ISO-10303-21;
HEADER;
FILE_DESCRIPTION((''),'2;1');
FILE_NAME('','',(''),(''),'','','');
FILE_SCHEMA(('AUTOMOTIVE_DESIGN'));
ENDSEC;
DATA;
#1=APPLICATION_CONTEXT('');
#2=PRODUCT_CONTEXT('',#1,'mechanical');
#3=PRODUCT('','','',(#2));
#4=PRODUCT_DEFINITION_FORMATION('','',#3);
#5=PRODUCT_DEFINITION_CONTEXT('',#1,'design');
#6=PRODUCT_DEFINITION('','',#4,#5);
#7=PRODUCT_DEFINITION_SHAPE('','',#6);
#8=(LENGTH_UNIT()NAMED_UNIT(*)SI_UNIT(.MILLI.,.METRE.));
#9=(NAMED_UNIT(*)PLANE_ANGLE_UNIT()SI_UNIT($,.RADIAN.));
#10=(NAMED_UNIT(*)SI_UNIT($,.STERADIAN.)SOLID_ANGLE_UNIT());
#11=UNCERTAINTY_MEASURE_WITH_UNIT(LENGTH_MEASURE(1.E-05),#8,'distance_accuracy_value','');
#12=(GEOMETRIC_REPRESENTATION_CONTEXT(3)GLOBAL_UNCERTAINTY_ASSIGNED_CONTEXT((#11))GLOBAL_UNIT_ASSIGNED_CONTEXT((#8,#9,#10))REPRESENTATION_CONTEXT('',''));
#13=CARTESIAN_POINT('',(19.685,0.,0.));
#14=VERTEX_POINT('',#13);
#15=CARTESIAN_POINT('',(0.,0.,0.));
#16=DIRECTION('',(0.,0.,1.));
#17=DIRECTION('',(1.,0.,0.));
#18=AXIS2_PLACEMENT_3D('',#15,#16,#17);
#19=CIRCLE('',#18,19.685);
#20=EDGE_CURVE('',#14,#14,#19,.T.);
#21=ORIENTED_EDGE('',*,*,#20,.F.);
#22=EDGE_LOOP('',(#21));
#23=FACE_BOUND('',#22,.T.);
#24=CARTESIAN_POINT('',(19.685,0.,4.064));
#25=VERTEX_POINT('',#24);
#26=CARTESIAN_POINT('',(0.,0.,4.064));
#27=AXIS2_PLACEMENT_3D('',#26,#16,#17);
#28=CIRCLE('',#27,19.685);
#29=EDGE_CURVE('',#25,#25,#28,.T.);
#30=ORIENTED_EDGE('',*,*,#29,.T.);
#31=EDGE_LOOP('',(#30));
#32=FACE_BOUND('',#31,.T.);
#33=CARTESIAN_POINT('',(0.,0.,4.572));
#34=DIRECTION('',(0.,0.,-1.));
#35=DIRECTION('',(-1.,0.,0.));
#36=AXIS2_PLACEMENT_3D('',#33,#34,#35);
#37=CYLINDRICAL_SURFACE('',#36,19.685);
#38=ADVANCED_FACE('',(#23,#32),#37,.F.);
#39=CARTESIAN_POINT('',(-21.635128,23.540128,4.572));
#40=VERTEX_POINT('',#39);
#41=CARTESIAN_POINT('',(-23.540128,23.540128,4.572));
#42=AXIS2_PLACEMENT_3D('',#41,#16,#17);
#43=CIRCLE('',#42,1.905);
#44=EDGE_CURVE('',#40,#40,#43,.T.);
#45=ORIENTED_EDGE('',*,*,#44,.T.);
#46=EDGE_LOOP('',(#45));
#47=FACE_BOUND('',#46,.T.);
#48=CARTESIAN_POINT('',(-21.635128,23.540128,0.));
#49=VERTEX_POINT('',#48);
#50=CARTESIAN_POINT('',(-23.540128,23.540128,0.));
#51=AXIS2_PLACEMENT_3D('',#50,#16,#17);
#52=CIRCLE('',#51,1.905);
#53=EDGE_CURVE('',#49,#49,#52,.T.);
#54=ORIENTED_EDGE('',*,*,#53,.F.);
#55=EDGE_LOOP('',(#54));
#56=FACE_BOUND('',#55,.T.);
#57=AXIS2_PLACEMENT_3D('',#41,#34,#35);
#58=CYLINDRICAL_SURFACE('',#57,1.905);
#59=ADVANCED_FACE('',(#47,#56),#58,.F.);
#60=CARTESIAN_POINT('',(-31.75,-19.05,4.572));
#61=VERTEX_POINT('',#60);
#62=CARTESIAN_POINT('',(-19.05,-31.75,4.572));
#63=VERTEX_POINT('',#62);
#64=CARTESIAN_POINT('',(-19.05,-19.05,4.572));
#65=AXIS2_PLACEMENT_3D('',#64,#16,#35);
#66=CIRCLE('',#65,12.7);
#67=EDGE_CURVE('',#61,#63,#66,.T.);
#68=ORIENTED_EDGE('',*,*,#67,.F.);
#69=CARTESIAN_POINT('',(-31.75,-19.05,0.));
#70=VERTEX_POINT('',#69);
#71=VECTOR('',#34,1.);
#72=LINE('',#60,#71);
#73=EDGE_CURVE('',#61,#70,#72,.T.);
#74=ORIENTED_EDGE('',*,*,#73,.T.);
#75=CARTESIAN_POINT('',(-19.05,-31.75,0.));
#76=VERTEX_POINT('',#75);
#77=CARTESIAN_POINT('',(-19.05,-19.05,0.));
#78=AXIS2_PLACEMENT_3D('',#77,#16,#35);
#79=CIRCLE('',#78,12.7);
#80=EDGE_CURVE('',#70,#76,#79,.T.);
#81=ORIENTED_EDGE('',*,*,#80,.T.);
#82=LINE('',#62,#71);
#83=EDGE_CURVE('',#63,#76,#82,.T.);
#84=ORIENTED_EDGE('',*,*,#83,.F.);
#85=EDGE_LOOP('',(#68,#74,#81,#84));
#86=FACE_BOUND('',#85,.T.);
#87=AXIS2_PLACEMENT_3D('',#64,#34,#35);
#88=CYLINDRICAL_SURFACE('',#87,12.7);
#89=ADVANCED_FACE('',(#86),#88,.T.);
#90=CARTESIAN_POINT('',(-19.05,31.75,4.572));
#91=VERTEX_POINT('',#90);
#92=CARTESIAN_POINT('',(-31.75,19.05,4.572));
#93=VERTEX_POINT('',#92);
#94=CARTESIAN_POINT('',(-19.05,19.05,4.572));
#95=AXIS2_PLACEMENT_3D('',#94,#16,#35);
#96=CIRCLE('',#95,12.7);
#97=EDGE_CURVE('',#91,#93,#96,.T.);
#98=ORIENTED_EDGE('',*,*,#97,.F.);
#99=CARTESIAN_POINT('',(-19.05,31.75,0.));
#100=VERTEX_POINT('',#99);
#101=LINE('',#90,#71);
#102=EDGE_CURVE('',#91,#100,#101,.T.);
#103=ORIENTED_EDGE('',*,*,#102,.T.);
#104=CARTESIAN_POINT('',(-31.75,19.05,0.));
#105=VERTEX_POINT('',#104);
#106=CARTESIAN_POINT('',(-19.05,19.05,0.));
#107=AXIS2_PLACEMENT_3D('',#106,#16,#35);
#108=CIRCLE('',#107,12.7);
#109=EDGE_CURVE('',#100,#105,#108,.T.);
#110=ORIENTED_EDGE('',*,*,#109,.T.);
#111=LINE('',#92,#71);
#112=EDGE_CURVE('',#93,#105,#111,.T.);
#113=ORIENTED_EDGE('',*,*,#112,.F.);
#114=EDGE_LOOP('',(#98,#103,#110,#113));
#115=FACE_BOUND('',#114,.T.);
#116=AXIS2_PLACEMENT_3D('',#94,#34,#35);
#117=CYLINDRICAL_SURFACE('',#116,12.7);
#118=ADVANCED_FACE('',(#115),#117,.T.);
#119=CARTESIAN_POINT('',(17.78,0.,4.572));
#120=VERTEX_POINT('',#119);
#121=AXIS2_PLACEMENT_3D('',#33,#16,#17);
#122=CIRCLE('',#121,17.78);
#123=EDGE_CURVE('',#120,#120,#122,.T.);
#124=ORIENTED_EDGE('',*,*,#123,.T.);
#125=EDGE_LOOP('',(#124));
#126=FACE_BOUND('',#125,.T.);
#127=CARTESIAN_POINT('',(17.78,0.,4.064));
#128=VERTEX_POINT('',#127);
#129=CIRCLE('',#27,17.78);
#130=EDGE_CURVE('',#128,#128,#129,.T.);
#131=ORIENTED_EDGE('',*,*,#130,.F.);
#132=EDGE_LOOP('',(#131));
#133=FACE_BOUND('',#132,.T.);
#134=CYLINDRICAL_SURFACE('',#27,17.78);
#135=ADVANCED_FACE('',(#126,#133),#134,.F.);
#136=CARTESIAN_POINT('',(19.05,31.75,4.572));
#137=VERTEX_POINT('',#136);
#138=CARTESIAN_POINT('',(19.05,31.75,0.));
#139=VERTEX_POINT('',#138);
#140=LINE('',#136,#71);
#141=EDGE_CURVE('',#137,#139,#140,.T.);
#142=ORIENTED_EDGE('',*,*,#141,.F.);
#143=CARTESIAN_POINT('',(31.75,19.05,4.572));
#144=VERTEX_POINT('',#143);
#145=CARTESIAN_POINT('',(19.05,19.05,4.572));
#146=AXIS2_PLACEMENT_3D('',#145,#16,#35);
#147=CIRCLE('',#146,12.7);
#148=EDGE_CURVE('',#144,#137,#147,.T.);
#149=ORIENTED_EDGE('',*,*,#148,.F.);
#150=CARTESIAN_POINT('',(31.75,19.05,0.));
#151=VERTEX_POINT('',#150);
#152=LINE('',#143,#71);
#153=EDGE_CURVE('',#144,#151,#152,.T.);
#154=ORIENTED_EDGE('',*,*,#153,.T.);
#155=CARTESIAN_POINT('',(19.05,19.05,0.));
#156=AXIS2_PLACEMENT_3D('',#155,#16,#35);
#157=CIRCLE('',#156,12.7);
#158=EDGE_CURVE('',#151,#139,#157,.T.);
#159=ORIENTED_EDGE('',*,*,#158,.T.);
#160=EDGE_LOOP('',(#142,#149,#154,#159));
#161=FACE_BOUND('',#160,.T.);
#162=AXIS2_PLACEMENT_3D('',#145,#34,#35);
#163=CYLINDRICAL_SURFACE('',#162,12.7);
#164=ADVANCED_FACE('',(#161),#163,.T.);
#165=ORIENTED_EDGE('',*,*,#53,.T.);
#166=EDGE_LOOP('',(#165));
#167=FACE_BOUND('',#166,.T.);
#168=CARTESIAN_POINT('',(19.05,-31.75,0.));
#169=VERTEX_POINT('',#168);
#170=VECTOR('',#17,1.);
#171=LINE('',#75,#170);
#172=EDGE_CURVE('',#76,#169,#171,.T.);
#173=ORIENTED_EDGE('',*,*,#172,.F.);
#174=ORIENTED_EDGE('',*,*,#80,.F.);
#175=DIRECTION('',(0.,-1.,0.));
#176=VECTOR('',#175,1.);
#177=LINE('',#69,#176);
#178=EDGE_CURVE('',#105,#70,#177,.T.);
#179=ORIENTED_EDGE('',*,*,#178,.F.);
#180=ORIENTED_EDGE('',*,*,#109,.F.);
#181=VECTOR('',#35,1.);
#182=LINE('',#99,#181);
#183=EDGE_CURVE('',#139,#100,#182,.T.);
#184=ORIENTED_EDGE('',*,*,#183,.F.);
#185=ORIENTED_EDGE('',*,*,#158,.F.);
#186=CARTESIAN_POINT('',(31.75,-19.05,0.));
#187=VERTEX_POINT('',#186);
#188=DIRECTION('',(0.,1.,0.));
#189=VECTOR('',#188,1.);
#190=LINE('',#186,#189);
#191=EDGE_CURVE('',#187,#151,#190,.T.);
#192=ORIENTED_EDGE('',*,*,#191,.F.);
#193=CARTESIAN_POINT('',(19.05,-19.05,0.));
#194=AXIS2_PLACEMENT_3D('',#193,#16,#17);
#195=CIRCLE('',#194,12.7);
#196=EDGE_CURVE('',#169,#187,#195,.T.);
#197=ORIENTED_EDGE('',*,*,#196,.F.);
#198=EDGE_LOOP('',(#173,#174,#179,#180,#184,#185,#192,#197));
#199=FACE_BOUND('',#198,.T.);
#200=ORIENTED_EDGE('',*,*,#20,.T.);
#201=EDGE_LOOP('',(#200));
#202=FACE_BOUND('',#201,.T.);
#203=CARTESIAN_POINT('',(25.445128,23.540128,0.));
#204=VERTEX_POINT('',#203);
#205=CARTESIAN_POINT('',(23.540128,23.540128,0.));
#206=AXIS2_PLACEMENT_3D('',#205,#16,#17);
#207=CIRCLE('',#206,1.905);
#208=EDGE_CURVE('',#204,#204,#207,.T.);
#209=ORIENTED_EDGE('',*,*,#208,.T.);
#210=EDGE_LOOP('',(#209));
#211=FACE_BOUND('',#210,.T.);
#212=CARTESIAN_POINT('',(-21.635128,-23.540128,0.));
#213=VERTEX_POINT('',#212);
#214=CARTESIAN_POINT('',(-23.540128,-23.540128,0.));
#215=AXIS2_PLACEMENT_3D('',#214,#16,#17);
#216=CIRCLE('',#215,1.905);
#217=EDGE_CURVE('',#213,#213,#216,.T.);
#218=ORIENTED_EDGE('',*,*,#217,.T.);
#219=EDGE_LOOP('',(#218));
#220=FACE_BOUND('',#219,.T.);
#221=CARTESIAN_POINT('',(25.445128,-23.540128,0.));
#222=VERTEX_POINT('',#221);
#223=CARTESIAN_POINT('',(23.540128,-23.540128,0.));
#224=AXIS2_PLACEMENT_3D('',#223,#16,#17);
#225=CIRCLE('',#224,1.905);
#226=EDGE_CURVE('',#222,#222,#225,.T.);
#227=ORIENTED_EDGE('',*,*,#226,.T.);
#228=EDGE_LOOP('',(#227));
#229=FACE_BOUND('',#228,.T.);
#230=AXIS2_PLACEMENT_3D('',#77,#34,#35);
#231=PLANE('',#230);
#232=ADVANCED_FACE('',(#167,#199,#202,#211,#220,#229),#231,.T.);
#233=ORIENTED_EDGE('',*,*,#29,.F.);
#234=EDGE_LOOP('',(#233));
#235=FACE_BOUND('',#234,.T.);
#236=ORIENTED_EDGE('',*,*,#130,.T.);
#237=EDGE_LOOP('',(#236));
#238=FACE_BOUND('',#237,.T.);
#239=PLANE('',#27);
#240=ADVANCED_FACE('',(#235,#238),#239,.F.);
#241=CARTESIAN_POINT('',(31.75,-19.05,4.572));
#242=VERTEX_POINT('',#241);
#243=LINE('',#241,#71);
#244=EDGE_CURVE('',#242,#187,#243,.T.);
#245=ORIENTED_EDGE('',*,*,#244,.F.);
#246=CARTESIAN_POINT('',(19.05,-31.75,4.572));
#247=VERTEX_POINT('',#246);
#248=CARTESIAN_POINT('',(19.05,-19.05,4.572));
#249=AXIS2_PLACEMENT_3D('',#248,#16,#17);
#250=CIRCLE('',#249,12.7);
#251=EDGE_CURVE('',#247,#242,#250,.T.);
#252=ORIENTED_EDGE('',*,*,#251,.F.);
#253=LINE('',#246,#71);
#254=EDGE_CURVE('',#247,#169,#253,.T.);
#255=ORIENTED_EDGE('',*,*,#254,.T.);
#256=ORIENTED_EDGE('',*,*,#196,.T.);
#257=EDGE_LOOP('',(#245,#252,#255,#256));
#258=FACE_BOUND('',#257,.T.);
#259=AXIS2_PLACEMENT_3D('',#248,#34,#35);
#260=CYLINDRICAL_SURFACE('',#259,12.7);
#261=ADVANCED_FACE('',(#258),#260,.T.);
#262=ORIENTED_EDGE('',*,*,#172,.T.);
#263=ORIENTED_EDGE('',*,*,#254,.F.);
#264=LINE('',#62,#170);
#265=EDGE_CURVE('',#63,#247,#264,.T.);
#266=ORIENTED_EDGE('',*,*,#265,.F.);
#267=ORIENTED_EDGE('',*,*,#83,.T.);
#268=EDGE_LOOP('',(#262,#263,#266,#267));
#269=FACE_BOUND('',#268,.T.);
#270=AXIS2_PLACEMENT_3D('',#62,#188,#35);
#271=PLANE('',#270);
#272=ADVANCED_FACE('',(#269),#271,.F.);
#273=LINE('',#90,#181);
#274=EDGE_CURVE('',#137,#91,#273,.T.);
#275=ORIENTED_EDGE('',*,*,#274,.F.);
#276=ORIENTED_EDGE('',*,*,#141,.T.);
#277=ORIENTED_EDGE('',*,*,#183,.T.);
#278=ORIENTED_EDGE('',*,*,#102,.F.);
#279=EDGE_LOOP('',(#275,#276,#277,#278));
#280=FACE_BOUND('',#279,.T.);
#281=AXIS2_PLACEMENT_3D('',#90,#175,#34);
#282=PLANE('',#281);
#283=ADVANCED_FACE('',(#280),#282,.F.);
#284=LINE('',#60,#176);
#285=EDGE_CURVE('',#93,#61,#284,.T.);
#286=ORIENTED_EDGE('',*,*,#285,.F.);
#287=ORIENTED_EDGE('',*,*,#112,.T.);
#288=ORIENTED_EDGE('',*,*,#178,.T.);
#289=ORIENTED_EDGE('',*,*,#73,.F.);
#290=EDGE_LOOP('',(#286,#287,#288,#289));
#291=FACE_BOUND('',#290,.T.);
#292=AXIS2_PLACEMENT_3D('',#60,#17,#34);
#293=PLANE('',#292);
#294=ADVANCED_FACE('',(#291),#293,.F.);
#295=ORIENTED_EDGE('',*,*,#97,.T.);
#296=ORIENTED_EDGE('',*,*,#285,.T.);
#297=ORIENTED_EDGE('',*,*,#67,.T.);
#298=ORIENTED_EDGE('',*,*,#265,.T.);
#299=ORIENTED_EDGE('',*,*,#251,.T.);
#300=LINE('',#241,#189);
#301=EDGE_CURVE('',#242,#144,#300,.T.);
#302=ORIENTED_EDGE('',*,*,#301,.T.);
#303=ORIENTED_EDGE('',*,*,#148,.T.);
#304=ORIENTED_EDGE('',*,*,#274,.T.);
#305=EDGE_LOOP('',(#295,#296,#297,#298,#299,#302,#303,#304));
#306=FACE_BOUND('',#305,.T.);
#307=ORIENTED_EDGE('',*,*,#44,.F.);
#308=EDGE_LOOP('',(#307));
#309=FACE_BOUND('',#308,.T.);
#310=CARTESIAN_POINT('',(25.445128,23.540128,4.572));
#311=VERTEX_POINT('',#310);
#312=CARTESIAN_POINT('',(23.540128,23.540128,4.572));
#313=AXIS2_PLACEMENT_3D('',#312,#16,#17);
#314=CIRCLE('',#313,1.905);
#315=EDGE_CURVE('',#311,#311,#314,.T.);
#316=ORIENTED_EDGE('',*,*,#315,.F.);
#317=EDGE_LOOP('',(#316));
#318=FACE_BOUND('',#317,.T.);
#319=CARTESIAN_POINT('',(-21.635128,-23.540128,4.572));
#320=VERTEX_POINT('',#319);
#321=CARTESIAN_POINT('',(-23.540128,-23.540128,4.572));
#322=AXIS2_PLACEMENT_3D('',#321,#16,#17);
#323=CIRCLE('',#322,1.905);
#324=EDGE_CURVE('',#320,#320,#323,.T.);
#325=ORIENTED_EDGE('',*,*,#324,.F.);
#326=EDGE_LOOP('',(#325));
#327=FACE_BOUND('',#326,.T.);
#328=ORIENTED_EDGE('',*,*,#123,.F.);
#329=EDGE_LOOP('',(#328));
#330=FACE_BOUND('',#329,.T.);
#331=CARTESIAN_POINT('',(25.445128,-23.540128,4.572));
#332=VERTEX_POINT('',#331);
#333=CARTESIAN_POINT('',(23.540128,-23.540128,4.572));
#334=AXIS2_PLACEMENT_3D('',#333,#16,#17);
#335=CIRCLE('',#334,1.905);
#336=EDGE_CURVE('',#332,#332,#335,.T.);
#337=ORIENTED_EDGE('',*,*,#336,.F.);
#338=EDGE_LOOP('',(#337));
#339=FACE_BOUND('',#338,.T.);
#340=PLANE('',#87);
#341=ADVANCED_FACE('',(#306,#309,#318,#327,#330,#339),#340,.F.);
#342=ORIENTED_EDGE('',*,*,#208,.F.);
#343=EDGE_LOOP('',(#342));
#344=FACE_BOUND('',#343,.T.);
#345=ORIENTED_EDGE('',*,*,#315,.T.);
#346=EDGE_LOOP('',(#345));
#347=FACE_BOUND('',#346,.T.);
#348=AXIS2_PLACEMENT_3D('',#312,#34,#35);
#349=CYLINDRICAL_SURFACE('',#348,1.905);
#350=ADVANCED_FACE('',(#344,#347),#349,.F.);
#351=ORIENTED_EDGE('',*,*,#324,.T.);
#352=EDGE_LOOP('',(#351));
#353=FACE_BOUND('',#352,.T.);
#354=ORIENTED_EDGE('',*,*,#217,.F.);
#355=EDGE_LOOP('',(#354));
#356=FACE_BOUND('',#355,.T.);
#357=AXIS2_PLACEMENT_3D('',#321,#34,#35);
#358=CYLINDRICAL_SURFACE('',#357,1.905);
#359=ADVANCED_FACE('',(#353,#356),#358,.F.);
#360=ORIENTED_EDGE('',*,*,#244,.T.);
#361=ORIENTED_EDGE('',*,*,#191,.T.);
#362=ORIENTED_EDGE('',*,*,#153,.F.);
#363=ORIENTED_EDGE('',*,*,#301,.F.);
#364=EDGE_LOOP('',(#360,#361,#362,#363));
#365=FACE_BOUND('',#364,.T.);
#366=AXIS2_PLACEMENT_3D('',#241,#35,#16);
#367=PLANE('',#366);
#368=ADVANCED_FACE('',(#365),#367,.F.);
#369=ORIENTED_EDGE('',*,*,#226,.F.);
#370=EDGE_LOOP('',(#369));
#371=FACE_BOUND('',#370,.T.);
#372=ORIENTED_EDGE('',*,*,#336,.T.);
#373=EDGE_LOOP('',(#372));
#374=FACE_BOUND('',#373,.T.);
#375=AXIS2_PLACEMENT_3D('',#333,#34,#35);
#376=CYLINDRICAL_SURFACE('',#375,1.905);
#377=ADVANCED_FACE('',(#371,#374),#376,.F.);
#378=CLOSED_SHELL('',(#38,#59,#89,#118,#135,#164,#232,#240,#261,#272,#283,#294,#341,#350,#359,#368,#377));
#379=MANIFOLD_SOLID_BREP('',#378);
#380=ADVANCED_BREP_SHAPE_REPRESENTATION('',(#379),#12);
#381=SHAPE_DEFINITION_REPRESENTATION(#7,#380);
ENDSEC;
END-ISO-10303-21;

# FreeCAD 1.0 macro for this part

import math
import FreeCAD as App
import Part
import Sketcher
from FreeCAD import Vector
Q = App.Units.Quantity

doc = App.newDocument("Part")
body = doc.addObject("PartDesign::Body", "Body")

sketch1 = doc.addObject("Sketcher::SketchObject", "Sketch")
body.addObject(sketch1)
sketch1.AttachmentSupport = (doc.XY_Plane, [""])
sketch1.MapMode = "FlatFace"
sketch1.addGeometry(Part.LineSegment(Vector(-19.05, -31.75, 0), Vector(19.05, -31.75, 0)), False)
sketch1.addGeometry(Part.ArcOfCircle(Part.Circle(Vector(19.05, -19.05, 0), Vector(0, 0, 1), 12.7), math.radians(-90), math.radians(0)), False)
sketch1.addGeometry(Part.LineSegment(Vector(31.75, -19.05, 0), Vector(31.75, 19.05, 0)), False)
sketch1.addGeometry(Part.ArcOfCircle(Part.Circle(Vector(19.05, 19.05, 0), Vector(0, 0, 1), 12.7), math.radians(0), math.radians(90)), False)
sketch1.addGeometry(Part.LineSegment(Vector(19.05, 31.75, 0), Vector(-19.05, 31.75, 0)), False)
sketch1.addGeometry(Part.ArcOfCircle(Part.Circle(Vector(-19.05, 19.05, 0), Vector(0, 0, 1), 12.7), math.radians(90), math.radians(180)), False)
sketch1.addGeometry(Part.LineSegment(Vector(-31.75, 19.05, 0), Vector(-31.75, -19.05, 0)), False)
sketch1.addGeometry(Part.ArcOfCircle(Part.Circle(Vector(-19.05, -19.05, 0), Vector(0, 0, 1), 12.7), math.radians(180), math.radians(270)), False)
sketch1.addGeometry(Part.Circle(Vector(-23.540128, -23.540128, 0), Vector(0, 0, 1), 1.905), False)
sketch1.addGeometry(Part.Circle(Vector(23.540128, -23.540128, 0), Vector(0, 0, 1), 1.905), False)
sketch1.addGeometry(Part.Circle(Vector(-23.540128, 23.540128, 0), Vector(0, 0, 1), 1.905), False)
sketch1.addGeometry(Part.Circle(Vector(0, 0, 0), Vector(0, 0, 1), 19.685), False)
sketch1.addGeometry(Part.Circle(Vector(23.540128, 23.540128, 0), Vector(0, 0, 1), 1.905), False)
sketch1.addConstraint(Sketcher.Constraint("Tangent", 0, 2, 1, 1))
sketch1.addConstraint(Sketcher.Constraint("Tangent", 1, 2, 2, 1))
sketch1.addConstraint(Sketcher.Constraint("Tangent", 2, 2, 3, 1))
sketch1.addConstraint(Sketcher.Constraint("Tangent", 3, 2, 4, 1))
sketch1.addConstraint(Sketcher.Constraint("Tangent", 4, 2, 5, 1))
sketch1.addConstraint(Sketcher.Constraint("Tangent", 5, 2, 6, 1))
sketch1.addConstraint(Sketcher.Constraint("Tangent", 6, 2, 7, 1))
sketch1.addConstraint(Sketcher.Constraint("Tangent", 7, 2, 0, 1))
sketch1.addConstraint(Sketcher.Constraint("Horizontal", 0))
sketch1.addConstraint(Sketcher.Constraint("Vertical", 2))
sketch1.addConstraint(Sketcher.Constraint("Horizontal", 4))
sketch1.addConstraint(Sketcher.Constraint("Vertical", 6))
sketch1.addConstraint(Sketcher.Constraint("Coincident", 11, 3, -1, 1))
sketch1.addConstraint(Sketcher.Constraint("Equal", 1, 3))
sketch1.addConstraint(Sketcher.Constraint("Equal", 3, 5))
sketch1.addConstraint(Sketcher.Constraint("Equal", 5, 7))
sketch1.addConstraint(Sketcher.Constraint("Equal", 8, 9))
sketch1.addConstraint(Sketcher.Constraint("Equal", 9, 10))
sketch1.addConstraint(Sketcher.Constraint("Equal", 10, 12))
sketch1.addConstraint(Sketcher.Constraint("Symmetric", 1, 3, 5, 3, -1, 1))
sketch1.addConstraint(Sketcher.Constraint("Symmetric", 9, 3, 10, 3, -1, 1))
sketch1.addConstraint(Sketcher.Constraint("Symmetric", 8, 3, 12, 3, -1, 1))
sketch1.addConstraint(Sketcher.Constraint("Symmetric", 8, 3, 9, 3, -2))
sketch1.addConstraint(Sketcher.Constraint("Equal", 4, 2))
sketch1.addConstraint(Sketcher.Constraint("Radius", 1, Q("0.5 in")))
sketch1.addConstraint(Sketcher.Constraint("Diameter", 8, Q("0.15 in")))
sketch1.addConstraint(Sketcher.Constraint("Diameter", 11, Q("1.55 in")))
sketch1.addConstraint(Sketcher.Constraint("DistanceX", 0, 1, 0, 2, Q("1.5 in")))
sketch1.addConstraint(Sketcher.Constraint("DistanceX", 8, 3, -1, 1, Q("23.540128 mm")))
sketch1.addConstraint(Sketcher.Constraint("DistanceY", 8, 3, -1, 1, Q("23.540128 mm")))
pad1 = doc.addObject("PartDesign::Pad", "Pad")
body.addObject(pad1)
pad1.Profile = sketch1
pad1.Length = Q("0.18 in")

sketch2 = doc.addObject("Sketcher::SketchObject", "Sketch001")
body.addObject(sketch2)
sketch2.AttachmentSupport = (doc.XY_Plane, [""])
sketch2.MapMode = "FlatFace"
sketch2.AttachmentOffset = App.Placement(Vector(0, 0, 0.18 * 25.4), App.Rotation())
sketch2.addGeometry(Part.Circle(Vector(0, 0, 0), Vector(0, 0, 1), 19.685), False)
sketch2.addGeometry(Part.Circle(Vector(0, 0, 0), Vector(0, 0, 1), 17.78), False)
sketch2.addConstraint(Sketcher.Constraint("Coincident", 0, 3, -1, 1))
sketch2.addConstraint(Sketcher.Constraint("Coincident", 1, 3, -1, 1))
sketch2.addConstraint(Sketcher.Constraint("Diameter", 1, Q("1.4 in")))
sketch2.addConstraint(Sketcher.Constraint("Diameter", 0, Q("1.55 in")))
pad2 = doc.addObject("PartDesign::Pad", "Pad001")
body.addObject(pad2)
pad2.Profile = sketch2
pad2.Length = Q("0.02 in")
pad2.Reversed = True

doc.recompute()
